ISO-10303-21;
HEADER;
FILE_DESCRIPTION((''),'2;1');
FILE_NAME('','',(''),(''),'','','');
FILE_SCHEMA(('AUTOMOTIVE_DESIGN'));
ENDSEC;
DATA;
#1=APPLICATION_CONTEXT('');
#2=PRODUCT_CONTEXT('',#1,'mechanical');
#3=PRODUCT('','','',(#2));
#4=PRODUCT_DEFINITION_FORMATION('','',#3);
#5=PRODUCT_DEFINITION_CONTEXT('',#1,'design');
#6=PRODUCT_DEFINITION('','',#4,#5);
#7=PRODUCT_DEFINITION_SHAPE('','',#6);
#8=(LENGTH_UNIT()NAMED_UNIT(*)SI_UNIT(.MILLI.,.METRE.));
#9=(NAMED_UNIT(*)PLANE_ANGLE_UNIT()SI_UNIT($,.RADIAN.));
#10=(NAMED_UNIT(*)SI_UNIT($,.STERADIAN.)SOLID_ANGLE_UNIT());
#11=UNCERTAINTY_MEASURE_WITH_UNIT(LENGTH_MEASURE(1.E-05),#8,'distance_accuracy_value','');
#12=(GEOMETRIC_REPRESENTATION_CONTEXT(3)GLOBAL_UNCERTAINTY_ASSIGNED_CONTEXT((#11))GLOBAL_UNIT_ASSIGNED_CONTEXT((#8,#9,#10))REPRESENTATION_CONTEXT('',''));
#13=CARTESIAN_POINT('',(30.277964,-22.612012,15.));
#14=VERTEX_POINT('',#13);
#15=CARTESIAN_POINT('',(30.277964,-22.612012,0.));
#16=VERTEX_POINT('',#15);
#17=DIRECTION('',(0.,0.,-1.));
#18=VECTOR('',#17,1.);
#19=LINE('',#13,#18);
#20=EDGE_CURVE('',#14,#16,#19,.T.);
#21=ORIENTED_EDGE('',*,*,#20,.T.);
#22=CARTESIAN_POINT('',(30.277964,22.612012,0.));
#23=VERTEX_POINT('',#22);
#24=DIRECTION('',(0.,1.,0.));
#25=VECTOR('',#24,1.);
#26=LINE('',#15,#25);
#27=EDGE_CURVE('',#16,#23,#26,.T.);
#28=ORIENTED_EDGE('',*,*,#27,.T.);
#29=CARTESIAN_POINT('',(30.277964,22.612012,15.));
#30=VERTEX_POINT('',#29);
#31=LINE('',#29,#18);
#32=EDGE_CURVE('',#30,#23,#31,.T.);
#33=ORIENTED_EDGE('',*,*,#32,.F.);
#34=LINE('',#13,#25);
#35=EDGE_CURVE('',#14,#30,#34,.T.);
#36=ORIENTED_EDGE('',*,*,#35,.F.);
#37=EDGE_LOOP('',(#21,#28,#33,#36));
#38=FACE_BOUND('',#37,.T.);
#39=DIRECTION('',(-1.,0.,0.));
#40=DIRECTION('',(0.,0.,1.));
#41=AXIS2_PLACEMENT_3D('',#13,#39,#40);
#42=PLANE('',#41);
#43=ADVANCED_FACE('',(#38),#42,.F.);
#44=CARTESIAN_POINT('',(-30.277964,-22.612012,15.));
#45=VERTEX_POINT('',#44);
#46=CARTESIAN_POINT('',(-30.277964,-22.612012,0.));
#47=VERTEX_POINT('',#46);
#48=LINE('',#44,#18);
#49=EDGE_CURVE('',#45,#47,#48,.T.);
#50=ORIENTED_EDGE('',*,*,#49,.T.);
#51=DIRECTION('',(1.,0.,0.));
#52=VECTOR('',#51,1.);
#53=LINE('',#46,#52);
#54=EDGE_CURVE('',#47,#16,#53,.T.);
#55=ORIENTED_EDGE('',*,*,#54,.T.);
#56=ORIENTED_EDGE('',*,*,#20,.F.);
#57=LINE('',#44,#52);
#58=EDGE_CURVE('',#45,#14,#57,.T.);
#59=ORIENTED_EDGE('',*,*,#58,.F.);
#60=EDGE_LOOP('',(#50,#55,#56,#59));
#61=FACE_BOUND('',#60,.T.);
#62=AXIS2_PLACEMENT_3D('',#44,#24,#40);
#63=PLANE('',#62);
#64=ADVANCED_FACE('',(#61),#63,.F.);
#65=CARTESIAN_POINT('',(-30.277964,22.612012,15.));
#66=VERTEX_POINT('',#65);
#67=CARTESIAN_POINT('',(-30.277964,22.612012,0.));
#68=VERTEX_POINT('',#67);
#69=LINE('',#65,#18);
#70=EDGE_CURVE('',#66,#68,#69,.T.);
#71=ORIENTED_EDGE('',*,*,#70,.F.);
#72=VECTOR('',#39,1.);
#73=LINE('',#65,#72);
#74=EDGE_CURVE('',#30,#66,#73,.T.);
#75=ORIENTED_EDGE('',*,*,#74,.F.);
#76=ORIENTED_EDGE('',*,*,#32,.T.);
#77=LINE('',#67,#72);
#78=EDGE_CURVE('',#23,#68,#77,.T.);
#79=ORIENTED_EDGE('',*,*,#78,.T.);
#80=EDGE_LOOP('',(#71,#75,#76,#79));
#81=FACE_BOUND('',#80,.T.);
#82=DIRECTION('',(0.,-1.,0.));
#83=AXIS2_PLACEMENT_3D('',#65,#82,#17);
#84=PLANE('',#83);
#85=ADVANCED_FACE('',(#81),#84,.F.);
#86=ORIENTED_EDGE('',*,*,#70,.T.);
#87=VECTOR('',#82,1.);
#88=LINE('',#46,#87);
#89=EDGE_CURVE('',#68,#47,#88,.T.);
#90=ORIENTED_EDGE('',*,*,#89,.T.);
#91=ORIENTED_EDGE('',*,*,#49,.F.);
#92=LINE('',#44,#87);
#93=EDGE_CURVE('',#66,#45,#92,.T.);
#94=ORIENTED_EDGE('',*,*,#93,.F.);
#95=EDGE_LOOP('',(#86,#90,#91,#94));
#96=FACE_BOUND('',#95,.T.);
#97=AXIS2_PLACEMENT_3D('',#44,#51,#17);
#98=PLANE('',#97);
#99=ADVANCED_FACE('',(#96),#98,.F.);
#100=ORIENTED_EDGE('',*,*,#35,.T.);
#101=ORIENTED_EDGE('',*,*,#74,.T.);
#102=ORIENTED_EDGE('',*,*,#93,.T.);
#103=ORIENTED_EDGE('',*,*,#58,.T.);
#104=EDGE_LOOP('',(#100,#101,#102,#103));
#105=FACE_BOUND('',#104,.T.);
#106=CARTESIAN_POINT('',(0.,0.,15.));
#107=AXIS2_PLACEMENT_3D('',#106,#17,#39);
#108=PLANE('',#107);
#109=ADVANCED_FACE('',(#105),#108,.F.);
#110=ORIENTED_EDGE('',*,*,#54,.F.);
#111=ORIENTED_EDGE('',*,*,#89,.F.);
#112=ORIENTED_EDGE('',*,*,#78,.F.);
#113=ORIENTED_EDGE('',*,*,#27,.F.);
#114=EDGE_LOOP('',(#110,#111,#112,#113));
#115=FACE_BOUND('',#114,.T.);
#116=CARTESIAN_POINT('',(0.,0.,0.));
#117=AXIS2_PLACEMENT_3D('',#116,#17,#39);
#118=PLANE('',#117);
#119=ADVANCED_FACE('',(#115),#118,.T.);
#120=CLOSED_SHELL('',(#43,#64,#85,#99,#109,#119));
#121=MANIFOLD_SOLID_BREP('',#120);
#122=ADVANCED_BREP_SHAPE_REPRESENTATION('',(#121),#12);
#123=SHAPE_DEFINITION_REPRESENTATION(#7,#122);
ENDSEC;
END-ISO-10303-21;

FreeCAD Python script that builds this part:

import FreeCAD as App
import Part
import Sketcher

V = App.Vector


def add_polygon(sketch, points):
    """Adds a closed chain of lines whose ends are joined by coincident constraints."""
    first, n = sketch.GeometryCount, len(points)
    for a, b in zip(points, points[1:] + points[:1]):
        sketch.addGeometry(Part.LineSegment(App.Vector(*a, 0), App.Vector(*b, 0)), False)
    for i in range(n):
        sketch.addConstraint(Sketcher.Constraint("Coincident", first + i, 2, first + (i + 1) % n, 1))

doc = App.newDocument("Part")
body = doc.addObject("PartDesign::Body", "Body")

# Sketch on XY plane
sketch1 = body.newObject("Sketcher::SketchObject", "Sketch")
sketch1.AttachmentSupport = (doc.getObject("XY_Plane"), [""])
sketch1.MapMode = "FlatFace"
add_polygon(sketch1, [(-30, 23), (-30, -23), (30, -23), (30, 23)])  # lines 0-3
sketch1.addConstraint(Sketcher.Constraint("Vertical", 0))
sketch1.addConstraint(Sketcher.Constraint("Horizontal", 1))
sketch1.addConstraint(Sketcher.Constraint("Vertical", 2))
sketch1.addConstraint(Sketcher.Constraint("Horizontal", 3))
sketch1.addConstraint(Sketcher.Constraint("Symmetric", 0, 2, 2, 2, -1, 1))
sketch1.addConstraint(Sketcher.Constraint("DistanceX", 1, 1, 1, 2, 60.555928))
sketch1.addConstraint(Sketcher.Constraint("DistanceY", 0, 2, 0, 1, 45.224024))
pad1 = body.newObject("PartDesign::Pad", "Pad")
pad1.Profile = sketch1
pad1.Length = 15

doc.recompute()
